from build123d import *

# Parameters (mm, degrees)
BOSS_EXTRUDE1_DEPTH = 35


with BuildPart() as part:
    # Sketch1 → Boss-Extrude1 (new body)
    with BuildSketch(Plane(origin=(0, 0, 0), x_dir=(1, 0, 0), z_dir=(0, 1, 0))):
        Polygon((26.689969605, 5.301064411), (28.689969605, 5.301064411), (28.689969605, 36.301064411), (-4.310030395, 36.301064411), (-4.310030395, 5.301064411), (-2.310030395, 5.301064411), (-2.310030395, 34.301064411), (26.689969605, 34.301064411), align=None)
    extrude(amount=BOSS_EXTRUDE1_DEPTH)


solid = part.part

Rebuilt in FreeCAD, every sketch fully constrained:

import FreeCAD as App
import Part
import Sketcher
Q = App.Units.Quantity

doc = App.newDocument("Part")
body = doc.addObject("PartDesign::Body", "Body")

# Sketch on XZ plane
sketch1 = body.newObject("Sketcher::SketchObject", "Sketch")
sketch1.AttachmentSupport = (doc.getObject("XZ_Plane"), [""])
sketch1.MapMode = "FlatFace"
sketch1.addGeometry(Part.LineSegment(App.Vector(26.68997, -5.301064, 0), App.Vector(28.68997, -5.301064, 0)), False)
sketch1.addGeometry(Part.LineSegment(App.Vector(28.68997, -5.301064, 0), App.Vector(28.68997, -36.301064, 0)), False)
sketch1.addGeometry(Part.LineSegment(App.Vector(28.68997, -36.301064, 0), App.Vector(-4.31003, -36.301064, 0)), False)
sketch1.addGeometry(Part.LineSegment(App.Vector(-4.31003, -36.301064, 0), App.Vector(-4.31003, -5.301064, 0)), False)
sketch1.addGeometry(Part.LineSegment(App.Vector(-4.31003, -5.301064, 0), App.Vector(-2.31003, -5.301064, 0)), False)
sketch1.addGeometry(Part.LineSegment(App.Vector(-2.31003, -5.301064, 0), App.Vector(-2.31003, -34.301064, 0)), False)
sketch1.addGeometry(Part.LineSegment(App.Vector(-2.31003, -34.301064, 0), App.Vector(26.68997, -34.301064, 0)), False)
sketch1.addGeometry(Part.LineSegment(App.Vector(26.68997, -34.301064, 0), App.Vector(26.68997, -5.301064, 0)), False)
sketch1.addConstraint(Sketcher.Constraint("Coincident", 0, 2, 1, 1))
sketch1.addConstraint(Sketcher.Constraint("Coincident", 1, 2, 2, 1))
sketch1.addConstraint(Sketcher.Constraint("Coincident", 2, 2, 3, 1))
sketch1.addConstraint(Sketcher.Constraint("Coincident", 3, 2, 4, 1))
sketch1.addConstraint(Sketcher.Constraint("Coincident", 4, 2, 5, 1))
sketch1.addConstraint(Sketcher.Constraint("Coincident", 5, 2, 6, 1))
sketch1.addConstraint(Sketcher.Constraint("Coincident", 6, 2, 7, 1))
sketch1.addConstraint(Sketcher.Constraint("Coincident", 7, 2, 0, 1))
sketch1.addConstraint(Sketcher.Constraint("Horizontal", 0))
sketch1.addConstraint(Sketcher.Constraint("Vertical", 1))
sketch1.addConstraint(Sketcher.Constraint("Horizontal", 2))
sketch1.addConstraint(Sketcher.Constraint("Vertical", 3))
sketch1.addConstraint(Sketcher.Constraint("Horizontal", 4))
sketch1.addConstraint(Sketcher.Constraint("Vertical", 5))
sketch1.addConstraint(Sketcher.Constraint("Horizontal", 6))
sketch1.addConstraint(Sketcher.Constraint("Vertical", 7))
sketch1.addConstraint(Sketcher.Constraint("Horizontal", 0, 2, 3, 2))
sketch1.addConstraint(Sketcher.Constraint("Equal", 0, 4))
sketch1.addConstraint(Sketcher.Constraint("Equal", 6, 5))
sketch1.addConstraint(Sketcher.Constraint("DistanceX", 0, 1, 0, 2, Q("2 mm")))
sketch1.addConstraint(Sketcher.Constraint("DistanceX", 2, 2, 2, 1, Q("33 mm")))
sketch1.addConstraint(Sketcher.Constraint("DistanceY", 1, 2, 1, 1, Q("31 mm")))
sketch1.addConstraint(Sketcher.Constraint("DistanceX", -1, 1, 0, 2, Q("28.68997 mm")))
sketch1.addConstraint(Sketcher.Constraint("DistanceY", 0, 2, -1, 1, Q("5.301064 mm")))
pad1 = body.newObject("PartDesign::Pad", "Pad")
pad1.Profile = sketch1
pad1.Length = 35
pad1.Reversed = True

doc.recompute()
